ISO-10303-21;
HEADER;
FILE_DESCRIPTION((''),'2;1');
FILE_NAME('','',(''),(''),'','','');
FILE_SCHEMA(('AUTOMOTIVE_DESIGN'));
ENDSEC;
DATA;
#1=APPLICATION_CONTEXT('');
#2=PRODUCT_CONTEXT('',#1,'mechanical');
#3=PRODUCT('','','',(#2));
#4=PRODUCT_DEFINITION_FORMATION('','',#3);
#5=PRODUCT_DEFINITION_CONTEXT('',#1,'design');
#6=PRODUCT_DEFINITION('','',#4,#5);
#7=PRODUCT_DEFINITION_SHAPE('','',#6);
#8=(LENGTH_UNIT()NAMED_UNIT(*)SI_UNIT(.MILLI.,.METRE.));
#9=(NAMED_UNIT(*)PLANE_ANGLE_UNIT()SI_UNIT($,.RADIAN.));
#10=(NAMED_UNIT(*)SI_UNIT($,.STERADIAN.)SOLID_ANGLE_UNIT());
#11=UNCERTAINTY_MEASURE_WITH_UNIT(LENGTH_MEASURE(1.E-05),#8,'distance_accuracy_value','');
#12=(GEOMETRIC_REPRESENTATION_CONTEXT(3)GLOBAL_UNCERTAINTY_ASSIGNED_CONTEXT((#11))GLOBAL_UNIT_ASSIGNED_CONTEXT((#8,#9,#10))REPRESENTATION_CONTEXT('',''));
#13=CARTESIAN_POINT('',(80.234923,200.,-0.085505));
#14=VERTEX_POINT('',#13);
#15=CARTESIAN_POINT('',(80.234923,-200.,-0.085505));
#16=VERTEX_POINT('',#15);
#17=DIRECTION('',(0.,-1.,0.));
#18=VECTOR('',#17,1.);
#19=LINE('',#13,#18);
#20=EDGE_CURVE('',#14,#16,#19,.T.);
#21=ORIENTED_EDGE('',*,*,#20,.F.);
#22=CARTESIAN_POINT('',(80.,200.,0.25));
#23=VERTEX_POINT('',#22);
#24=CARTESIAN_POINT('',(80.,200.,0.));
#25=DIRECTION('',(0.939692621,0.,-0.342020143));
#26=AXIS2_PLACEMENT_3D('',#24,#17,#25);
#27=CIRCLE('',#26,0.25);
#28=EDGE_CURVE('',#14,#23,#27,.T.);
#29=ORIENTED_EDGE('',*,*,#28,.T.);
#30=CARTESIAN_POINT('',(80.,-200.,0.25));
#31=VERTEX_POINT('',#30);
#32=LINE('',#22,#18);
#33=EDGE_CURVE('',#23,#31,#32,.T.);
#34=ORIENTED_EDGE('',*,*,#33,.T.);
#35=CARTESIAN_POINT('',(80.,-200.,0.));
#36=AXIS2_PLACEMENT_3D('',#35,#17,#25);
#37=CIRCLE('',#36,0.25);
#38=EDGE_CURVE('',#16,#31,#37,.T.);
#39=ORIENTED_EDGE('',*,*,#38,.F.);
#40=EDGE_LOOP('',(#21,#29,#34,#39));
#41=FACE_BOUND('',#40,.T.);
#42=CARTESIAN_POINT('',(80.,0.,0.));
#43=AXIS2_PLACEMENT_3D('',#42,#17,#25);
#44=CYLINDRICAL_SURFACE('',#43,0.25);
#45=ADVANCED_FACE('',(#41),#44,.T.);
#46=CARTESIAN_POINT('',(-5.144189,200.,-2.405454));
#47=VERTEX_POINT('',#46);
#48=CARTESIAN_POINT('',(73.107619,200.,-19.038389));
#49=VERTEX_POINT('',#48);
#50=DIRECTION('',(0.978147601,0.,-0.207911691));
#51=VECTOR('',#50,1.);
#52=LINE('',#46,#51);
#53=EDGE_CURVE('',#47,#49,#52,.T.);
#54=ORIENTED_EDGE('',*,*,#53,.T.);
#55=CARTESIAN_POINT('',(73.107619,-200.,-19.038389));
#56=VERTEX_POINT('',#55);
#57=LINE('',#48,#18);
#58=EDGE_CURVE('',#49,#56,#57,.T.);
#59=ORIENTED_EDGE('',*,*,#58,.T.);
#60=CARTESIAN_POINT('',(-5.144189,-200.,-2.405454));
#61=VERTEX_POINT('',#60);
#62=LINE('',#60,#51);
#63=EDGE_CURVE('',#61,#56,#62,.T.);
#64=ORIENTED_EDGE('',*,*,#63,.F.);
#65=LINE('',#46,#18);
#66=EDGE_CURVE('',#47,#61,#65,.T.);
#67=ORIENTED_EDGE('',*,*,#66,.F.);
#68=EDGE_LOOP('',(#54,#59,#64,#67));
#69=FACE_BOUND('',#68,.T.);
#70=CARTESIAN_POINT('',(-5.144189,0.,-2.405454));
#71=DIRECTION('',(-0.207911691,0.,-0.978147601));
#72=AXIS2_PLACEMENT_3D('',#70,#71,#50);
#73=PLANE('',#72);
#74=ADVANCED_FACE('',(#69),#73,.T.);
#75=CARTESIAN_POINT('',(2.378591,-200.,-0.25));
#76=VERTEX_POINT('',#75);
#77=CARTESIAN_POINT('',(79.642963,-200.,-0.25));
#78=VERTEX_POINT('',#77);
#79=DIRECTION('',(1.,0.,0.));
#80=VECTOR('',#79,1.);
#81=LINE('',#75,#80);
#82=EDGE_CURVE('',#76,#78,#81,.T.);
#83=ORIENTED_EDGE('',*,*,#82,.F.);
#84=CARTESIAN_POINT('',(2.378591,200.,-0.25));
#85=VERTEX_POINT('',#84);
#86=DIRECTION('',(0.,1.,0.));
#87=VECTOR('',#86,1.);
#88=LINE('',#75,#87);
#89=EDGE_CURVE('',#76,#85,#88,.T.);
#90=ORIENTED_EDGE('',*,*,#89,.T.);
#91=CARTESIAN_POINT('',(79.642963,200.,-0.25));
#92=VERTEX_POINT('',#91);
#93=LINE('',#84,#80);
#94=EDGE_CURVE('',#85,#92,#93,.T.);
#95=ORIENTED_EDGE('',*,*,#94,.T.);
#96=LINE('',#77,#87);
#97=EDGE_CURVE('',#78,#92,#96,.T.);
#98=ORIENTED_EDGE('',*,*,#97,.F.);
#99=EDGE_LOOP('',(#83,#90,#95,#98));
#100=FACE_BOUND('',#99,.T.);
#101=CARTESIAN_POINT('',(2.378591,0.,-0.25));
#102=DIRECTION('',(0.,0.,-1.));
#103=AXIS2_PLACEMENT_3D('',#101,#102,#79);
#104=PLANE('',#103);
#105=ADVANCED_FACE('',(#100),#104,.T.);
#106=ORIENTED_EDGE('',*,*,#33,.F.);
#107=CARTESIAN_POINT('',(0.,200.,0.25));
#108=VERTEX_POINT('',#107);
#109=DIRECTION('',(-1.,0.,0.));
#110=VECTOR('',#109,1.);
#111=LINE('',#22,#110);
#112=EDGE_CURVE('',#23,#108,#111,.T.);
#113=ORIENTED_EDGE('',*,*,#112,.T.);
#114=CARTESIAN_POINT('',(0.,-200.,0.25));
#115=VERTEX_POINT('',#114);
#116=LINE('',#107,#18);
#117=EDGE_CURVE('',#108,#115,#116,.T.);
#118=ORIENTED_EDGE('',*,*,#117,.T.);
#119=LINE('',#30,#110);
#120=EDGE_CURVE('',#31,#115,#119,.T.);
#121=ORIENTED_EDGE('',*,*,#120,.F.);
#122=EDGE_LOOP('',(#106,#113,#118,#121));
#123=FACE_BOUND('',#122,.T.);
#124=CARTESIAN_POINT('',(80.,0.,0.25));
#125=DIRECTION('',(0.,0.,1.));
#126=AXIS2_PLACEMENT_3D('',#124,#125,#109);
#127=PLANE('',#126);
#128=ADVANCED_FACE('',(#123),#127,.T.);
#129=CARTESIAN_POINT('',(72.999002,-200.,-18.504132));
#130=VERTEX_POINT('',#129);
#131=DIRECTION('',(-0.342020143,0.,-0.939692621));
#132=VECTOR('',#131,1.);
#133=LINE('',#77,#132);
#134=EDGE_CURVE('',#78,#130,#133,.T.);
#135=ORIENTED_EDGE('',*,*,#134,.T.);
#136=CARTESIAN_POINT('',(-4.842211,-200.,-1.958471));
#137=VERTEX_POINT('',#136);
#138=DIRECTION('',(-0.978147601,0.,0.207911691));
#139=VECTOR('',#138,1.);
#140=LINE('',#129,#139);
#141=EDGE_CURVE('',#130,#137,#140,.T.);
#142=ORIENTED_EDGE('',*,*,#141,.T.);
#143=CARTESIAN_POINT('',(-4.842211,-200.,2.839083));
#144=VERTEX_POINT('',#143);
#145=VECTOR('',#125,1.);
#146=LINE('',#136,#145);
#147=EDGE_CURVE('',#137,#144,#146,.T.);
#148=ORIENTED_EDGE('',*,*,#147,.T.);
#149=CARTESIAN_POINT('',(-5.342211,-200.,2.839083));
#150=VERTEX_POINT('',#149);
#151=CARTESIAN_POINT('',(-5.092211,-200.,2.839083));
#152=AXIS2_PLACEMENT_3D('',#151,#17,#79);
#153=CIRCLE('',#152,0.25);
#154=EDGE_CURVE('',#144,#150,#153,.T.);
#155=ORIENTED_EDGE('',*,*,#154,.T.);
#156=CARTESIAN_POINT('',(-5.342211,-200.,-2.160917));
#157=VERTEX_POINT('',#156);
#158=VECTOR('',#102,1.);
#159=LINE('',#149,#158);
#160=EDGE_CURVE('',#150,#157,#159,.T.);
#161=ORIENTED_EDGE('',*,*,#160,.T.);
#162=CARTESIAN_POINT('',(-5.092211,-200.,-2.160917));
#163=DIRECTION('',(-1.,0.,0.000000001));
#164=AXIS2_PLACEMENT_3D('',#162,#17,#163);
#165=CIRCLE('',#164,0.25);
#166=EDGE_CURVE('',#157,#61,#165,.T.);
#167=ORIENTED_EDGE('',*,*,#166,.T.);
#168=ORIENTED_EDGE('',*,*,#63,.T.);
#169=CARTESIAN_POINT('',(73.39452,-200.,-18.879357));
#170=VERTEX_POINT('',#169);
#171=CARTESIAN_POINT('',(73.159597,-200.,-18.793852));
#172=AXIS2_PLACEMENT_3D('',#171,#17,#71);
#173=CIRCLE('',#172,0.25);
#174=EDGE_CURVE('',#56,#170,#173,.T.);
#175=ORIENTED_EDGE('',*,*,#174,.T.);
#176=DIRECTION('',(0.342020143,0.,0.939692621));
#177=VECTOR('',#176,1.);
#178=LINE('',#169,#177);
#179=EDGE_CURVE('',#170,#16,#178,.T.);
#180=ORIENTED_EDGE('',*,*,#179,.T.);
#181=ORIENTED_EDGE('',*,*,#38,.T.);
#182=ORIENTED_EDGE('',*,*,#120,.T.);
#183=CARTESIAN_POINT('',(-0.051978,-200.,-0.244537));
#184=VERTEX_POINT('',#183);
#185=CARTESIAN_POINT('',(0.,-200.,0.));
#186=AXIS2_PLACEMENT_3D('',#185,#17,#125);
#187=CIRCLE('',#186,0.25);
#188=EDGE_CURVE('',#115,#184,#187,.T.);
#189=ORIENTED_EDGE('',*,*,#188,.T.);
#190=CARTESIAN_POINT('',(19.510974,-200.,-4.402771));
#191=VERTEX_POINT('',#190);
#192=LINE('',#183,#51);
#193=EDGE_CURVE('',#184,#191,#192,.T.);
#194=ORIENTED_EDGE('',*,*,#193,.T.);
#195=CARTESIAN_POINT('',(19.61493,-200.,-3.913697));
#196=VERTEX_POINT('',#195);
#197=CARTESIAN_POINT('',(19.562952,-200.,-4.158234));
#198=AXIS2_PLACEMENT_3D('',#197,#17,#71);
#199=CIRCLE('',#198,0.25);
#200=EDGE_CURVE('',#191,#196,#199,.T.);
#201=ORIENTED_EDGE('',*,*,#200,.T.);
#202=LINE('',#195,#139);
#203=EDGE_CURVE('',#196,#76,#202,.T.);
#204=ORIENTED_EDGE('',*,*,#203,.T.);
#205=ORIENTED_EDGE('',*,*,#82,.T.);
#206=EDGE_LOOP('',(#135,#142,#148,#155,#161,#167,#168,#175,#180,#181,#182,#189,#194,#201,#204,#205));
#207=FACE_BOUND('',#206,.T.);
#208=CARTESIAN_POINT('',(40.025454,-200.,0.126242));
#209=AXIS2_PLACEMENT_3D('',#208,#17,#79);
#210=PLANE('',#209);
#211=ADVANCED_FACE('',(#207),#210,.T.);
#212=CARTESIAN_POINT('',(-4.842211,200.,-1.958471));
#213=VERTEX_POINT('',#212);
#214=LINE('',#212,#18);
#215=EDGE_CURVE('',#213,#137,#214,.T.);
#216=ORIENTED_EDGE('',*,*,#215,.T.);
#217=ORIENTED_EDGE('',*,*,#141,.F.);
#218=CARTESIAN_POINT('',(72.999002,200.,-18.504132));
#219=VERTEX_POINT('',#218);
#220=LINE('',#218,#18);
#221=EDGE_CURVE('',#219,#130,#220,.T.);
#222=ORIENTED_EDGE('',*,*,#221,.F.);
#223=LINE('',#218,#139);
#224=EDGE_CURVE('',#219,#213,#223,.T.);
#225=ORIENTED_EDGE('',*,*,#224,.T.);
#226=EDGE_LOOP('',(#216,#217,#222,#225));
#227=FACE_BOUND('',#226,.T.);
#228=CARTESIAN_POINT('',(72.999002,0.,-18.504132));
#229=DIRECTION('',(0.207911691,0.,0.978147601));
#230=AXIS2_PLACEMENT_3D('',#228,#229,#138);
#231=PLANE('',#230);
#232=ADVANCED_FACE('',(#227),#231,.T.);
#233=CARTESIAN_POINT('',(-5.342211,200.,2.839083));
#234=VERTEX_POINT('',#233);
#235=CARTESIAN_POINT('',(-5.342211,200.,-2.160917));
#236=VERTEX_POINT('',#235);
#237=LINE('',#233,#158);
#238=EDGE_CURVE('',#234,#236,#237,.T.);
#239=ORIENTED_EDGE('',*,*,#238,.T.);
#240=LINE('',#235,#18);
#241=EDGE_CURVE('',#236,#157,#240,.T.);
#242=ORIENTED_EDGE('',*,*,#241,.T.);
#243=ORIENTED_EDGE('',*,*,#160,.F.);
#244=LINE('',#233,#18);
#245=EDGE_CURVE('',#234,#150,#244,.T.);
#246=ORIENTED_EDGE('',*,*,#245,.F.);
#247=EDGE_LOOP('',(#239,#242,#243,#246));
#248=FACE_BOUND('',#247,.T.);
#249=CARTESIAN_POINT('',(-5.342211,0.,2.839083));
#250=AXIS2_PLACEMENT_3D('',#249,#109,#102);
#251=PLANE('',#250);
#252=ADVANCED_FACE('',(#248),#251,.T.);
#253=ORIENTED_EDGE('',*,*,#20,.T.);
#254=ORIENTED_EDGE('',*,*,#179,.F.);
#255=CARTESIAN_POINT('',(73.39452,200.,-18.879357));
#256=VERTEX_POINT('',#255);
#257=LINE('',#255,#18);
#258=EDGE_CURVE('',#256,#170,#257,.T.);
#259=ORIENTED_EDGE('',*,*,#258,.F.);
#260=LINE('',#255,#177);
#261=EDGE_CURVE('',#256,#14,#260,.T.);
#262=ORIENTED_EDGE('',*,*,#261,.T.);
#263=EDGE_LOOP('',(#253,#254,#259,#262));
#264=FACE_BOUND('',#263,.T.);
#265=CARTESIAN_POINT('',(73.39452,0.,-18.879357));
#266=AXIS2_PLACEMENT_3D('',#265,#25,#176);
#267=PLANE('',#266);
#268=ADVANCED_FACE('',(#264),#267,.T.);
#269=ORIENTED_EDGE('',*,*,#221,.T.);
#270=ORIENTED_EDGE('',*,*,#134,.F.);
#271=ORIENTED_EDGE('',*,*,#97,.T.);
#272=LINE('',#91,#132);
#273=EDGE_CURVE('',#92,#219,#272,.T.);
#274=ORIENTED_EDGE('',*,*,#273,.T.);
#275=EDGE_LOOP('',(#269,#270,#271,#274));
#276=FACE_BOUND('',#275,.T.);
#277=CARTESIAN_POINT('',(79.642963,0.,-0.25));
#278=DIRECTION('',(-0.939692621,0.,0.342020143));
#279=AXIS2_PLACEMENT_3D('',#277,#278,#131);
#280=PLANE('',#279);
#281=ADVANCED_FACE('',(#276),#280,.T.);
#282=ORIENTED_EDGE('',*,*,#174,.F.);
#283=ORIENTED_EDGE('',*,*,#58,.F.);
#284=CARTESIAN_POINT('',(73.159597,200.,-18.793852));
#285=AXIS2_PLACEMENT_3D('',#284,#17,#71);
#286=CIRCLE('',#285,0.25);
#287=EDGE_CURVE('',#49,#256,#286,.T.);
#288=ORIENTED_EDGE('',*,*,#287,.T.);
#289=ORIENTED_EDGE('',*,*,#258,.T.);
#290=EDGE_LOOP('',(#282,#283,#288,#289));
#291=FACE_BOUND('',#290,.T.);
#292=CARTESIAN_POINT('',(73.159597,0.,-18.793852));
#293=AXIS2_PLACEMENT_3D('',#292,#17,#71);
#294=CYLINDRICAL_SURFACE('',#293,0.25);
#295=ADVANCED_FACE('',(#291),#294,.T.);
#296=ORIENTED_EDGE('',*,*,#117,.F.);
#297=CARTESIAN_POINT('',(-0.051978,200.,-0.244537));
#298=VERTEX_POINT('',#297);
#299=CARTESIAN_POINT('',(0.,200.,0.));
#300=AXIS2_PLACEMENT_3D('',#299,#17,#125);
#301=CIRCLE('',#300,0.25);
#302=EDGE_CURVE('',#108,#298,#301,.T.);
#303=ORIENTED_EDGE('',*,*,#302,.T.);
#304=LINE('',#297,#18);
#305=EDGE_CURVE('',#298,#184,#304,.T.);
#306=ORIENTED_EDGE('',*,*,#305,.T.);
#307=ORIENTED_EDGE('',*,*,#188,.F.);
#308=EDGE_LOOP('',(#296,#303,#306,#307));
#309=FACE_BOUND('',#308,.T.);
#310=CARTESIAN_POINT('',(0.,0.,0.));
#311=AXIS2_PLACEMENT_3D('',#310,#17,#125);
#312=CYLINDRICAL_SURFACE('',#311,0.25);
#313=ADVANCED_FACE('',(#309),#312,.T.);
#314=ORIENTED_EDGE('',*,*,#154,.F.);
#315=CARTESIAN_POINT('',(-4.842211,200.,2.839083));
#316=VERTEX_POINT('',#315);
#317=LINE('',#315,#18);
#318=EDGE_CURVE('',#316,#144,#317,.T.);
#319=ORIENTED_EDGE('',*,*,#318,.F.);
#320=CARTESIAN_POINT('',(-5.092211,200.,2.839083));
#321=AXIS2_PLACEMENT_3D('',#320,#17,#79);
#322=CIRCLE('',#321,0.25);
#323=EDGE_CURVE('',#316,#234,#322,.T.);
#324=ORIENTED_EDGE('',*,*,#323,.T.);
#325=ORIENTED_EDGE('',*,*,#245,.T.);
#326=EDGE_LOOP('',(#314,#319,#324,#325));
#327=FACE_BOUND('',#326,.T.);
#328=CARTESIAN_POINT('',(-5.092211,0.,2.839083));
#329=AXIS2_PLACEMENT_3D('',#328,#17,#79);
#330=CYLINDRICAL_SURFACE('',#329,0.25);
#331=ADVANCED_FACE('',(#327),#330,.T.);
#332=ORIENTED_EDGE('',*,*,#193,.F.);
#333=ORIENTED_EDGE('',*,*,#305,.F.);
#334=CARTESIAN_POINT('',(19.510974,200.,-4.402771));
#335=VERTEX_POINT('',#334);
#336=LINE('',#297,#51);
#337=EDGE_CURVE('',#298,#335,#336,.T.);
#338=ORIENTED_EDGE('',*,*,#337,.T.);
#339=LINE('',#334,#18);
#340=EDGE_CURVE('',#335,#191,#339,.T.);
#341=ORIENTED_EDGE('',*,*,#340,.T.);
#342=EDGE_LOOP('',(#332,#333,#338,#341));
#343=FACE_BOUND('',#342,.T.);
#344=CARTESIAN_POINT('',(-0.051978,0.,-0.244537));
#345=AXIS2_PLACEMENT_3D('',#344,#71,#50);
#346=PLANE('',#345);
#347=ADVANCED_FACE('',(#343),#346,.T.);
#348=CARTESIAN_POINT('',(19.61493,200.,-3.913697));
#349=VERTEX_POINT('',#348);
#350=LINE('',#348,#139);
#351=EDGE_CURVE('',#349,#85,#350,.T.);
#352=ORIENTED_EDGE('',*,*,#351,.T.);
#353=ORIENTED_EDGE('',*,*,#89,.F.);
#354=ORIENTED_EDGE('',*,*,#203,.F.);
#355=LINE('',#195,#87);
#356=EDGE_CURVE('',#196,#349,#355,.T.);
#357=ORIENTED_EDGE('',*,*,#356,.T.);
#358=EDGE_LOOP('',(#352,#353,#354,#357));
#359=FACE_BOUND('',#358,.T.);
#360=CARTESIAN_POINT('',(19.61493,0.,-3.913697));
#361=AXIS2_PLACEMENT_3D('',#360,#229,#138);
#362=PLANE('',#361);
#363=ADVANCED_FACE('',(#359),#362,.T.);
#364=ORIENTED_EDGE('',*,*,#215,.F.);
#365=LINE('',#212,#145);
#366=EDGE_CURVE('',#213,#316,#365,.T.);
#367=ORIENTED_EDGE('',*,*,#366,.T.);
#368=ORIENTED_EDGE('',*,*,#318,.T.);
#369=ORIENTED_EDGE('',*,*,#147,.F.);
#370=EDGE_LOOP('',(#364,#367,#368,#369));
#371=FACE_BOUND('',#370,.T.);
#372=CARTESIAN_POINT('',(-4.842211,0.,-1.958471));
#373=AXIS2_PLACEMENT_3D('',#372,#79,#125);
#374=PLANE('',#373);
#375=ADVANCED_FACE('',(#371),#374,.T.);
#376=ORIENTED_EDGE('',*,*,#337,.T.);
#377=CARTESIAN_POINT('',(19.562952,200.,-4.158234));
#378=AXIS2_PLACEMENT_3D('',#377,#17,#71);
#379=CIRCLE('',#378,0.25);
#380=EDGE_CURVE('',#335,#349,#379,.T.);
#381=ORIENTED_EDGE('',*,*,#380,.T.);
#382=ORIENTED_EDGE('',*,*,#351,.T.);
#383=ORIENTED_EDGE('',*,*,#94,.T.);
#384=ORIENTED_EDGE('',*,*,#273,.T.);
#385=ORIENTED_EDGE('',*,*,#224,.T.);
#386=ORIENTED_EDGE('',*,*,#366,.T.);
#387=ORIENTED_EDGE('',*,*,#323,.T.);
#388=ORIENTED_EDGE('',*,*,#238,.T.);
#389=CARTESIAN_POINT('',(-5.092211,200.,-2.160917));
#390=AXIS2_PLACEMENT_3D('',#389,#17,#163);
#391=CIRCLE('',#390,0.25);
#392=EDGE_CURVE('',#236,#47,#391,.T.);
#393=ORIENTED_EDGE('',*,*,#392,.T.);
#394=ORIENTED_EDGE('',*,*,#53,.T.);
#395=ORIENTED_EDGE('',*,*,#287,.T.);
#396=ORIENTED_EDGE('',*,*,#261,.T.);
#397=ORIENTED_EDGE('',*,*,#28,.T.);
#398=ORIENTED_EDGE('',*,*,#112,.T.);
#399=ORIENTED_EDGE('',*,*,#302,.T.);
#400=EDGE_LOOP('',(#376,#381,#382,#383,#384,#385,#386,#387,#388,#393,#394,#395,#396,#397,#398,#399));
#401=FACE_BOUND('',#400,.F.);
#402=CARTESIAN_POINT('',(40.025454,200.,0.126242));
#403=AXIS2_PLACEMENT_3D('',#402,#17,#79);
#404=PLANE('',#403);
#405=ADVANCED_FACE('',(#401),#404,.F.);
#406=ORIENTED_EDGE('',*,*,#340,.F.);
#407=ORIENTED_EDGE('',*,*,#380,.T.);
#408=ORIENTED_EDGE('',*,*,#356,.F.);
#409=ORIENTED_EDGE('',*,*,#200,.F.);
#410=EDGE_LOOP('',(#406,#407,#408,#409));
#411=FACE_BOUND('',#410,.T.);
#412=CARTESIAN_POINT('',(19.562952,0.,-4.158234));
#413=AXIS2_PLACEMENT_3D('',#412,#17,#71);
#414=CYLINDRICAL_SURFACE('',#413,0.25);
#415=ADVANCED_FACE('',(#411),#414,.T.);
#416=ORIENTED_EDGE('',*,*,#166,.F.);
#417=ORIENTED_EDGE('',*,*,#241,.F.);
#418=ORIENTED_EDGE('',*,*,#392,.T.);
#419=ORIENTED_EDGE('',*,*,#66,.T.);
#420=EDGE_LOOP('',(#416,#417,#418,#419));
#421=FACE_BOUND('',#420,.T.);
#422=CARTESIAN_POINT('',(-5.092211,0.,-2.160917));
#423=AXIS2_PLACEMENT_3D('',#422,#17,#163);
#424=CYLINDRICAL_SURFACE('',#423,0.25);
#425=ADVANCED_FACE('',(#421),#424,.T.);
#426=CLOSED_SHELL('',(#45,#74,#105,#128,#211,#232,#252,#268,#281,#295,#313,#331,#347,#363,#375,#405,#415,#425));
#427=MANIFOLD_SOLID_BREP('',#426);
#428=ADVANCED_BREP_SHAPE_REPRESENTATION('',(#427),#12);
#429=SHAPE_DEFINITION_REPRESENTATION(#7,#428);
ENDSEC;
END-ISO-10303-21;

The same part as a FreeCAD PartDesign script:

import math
import FreeCAD as App
import Part
import Sketcher
Q = App.Units.Quantity

doc = App.newDocument("Part")
body = doc.addObject("PartDesign::Body", "Body")

# Sketch on XZ plane
sketch1 = body.newObject("Sketcher::SketchObject", "Sketch")
sketch1.AttachmentSupport = (doc.getObject("XZ_Plane"), [""])
sketch1.MapMode = "FlatFace"
sketch1.addGeometry([
    Part.LineSegment(App.Vector(79.64, -0.25, 0), App.Vector(73, -18.5, 0)),  # 0
    Part.LineSegment(App.Vector(73, -18.5, 0), App.Vector(-4.84, -1.96, 0)),  # 1
    Part.LineSegment(App.Vector(-4.84, -1.96, 0), App.Vector(-4.84, 2.84, 0)),  # 2
    Part.ArcOfCircle(Part.Circle(App.Vector(-5.09, 2.84, 0), App.Vector(0, 0, 1), 0.25), math.radians(0), math.radians(180)),  # 3
    Part.LineSegment(App.Vector(-5.34, 2.84, 0), App.Vector(-5.34, -2.16, 0)),  # 4
    Part.ArcOfCircle(Part.Circle(App.Vector(-5.09, -2.16, 0), App.Vector(0, 0, 1), 0.25), math.radians(180), math.radians(258)),  # 5
    Part.LineSegment(App.Vector(-5.14, -2.41, 0), App.Vector(73.11, -19.04, 0)),  # 6
    Part.ArcOfCircle(Part.Circle(App.Vector(73.16, -18.79, 0), App.Vector(0, 0, 1), 0.25), math.radians(-102), math.radians(-20)),  # 7
    Part.LineSegment(App.Vector(73.39, -18.88, 0), App.Vector(80.23, -0.09, 0)),  # 8
    Part.ArcOfCircle(Part.Circle(App.Vector(80, 0, 0), App.Vector(0, 0, 1), 0.25), math.radians(-20), math.radians(90)),  # 9
    Part.LineSegment(App.Vector(80, 0.25, 0), App.Vector(0, 0.25, 0)),  # 10
    Part.ArcOfCircle(Part.Circle(App.Vector(0, 0, 0), App.Vector(0, 0, 1), 0.25), math.radians(90), math.radians(258)),  # 11
    Part.LineSegment(App.Vector(-0.05, -0.24, 0), App.Vector(19.51, -4.4, 0)),  # 12
    Part.ArcOfCircle(Part.Circle(App.Vector(19.56, -4.16, 0), App.Vector(0, 0, 1), 0.25), math.radians(-102), math.radians(78)),  # 13
    Part.LineSegment(App.Vector(19.61, -3.91, 0), App.Vector(2.38, -0.25, 0)),  # 14
    Part.LineSegment(App.Vector(2.38, -0.25, 0), App.Vector(79.64, -0.25, 0)),  # 15
], False)
sketch1.addConstraint([
    Sketcher.Constraint("Coincident", 0, 2, 1, 1),
    Sketcher.Constraint("Coincident", 1, 2, 2, 1),
    Sketcher.Constraint("Tangent", 2, 2, 3, 1),
    Sketcher.Constraint("Tangent", 3, 2, 4, 1),
    Sketcher.Constraint("Tangent", 4, 2, 5, 1),
    Sketcher.Constraint("Tangent", 5, 2, 6, 1),
    Sketcher.Constraint("Tangent", 6, 2, 7, 1),
    Sketcher.Constraint("Tangent", 7, 2, 8, 1),
    Sketcher.Constraint("Tangent", 8, 2, 9, 1),
    Sketcher.Constraint("Tangent", 9, 2, 10, 1),
    Sketcher.Constraint("Tangent", 10, 2, 11, 1),
    Sketcher.Constraint("Tangent", 11, 2, 12, 1),
    Sketcher.Constraint("Tangent", 12, 2, 13, 1),
    Sketcher.Constraint("Tangent", 13, 2, 14, 1),
    Sketcher.Constraint("Coincident", 14, 2, 15, 1),
    Sketcher.Constraint("Coincident", 15, 2, 0, 1),
    Sketcher.Constraint("Vertical", 2),
    Sketcher.Constraint("Vertical", 4),
    Sketcher.Constraint("Horizontal", 10),
    Sketcher.Constraint("Horizontal", 15),
    Sketcher.Constraint("Coincident", 11, 3, -1, 1),
    Sketcher.Constraint("Equal", 3, 5),
    Sketcher.Constraint("Equal", 5, 7),
    Sketcher.Constraint("Equal", 7, 9),
    Sketcher.Constraint("Equal", 9, 11),
    Sketcher.Constraint("Equal", 11, 13),
    Sketcher.Constraint("Parallel", 1, 6),
    Sketcher.Constraint("Parallel", 0, 8),
    Sketcher.Constraint("Parallel", 6, 12),
    Sketcher.Constraint("Parallel", 12, 14),
    Sketcher.Constraint("Equal", 8, 12),
    Sketcher.Constraint("DistanceX", 10, 2, 10, 1, 80.0),
    Sketcher.Constraint("DistanceY", 4, 2, 4, 1, 5.0),
    Sketcher.Constraint("Angle", 0, Q("-110 deg")),
    Sketcher.Constraint("Angle", 1, Q("168 deg")),
    Sketcher.Constraint("Radius", 3, 0.25),
    Sketcher.Constraint("Distance", 6, 80.0),
    Sketcher.Constraint("Distance", 8, 20.0),
    Sketcher.Constraint("DistanceY", 14, 2, 10, 2, 0.5),
    Sketcher.Constraint("DistanceX", 15, 1, 15, 2, 77.264372),
    Sketcher.Constraint("DistanceY", 12, 2, 1, 2, 2.4443),
])
pad1 = body.newObject("PartDesign::Pad", "Pad")
pad1.Profile = sketch1
pad1.Length = 400
pad1.Midplane = True

doc.recompute()
